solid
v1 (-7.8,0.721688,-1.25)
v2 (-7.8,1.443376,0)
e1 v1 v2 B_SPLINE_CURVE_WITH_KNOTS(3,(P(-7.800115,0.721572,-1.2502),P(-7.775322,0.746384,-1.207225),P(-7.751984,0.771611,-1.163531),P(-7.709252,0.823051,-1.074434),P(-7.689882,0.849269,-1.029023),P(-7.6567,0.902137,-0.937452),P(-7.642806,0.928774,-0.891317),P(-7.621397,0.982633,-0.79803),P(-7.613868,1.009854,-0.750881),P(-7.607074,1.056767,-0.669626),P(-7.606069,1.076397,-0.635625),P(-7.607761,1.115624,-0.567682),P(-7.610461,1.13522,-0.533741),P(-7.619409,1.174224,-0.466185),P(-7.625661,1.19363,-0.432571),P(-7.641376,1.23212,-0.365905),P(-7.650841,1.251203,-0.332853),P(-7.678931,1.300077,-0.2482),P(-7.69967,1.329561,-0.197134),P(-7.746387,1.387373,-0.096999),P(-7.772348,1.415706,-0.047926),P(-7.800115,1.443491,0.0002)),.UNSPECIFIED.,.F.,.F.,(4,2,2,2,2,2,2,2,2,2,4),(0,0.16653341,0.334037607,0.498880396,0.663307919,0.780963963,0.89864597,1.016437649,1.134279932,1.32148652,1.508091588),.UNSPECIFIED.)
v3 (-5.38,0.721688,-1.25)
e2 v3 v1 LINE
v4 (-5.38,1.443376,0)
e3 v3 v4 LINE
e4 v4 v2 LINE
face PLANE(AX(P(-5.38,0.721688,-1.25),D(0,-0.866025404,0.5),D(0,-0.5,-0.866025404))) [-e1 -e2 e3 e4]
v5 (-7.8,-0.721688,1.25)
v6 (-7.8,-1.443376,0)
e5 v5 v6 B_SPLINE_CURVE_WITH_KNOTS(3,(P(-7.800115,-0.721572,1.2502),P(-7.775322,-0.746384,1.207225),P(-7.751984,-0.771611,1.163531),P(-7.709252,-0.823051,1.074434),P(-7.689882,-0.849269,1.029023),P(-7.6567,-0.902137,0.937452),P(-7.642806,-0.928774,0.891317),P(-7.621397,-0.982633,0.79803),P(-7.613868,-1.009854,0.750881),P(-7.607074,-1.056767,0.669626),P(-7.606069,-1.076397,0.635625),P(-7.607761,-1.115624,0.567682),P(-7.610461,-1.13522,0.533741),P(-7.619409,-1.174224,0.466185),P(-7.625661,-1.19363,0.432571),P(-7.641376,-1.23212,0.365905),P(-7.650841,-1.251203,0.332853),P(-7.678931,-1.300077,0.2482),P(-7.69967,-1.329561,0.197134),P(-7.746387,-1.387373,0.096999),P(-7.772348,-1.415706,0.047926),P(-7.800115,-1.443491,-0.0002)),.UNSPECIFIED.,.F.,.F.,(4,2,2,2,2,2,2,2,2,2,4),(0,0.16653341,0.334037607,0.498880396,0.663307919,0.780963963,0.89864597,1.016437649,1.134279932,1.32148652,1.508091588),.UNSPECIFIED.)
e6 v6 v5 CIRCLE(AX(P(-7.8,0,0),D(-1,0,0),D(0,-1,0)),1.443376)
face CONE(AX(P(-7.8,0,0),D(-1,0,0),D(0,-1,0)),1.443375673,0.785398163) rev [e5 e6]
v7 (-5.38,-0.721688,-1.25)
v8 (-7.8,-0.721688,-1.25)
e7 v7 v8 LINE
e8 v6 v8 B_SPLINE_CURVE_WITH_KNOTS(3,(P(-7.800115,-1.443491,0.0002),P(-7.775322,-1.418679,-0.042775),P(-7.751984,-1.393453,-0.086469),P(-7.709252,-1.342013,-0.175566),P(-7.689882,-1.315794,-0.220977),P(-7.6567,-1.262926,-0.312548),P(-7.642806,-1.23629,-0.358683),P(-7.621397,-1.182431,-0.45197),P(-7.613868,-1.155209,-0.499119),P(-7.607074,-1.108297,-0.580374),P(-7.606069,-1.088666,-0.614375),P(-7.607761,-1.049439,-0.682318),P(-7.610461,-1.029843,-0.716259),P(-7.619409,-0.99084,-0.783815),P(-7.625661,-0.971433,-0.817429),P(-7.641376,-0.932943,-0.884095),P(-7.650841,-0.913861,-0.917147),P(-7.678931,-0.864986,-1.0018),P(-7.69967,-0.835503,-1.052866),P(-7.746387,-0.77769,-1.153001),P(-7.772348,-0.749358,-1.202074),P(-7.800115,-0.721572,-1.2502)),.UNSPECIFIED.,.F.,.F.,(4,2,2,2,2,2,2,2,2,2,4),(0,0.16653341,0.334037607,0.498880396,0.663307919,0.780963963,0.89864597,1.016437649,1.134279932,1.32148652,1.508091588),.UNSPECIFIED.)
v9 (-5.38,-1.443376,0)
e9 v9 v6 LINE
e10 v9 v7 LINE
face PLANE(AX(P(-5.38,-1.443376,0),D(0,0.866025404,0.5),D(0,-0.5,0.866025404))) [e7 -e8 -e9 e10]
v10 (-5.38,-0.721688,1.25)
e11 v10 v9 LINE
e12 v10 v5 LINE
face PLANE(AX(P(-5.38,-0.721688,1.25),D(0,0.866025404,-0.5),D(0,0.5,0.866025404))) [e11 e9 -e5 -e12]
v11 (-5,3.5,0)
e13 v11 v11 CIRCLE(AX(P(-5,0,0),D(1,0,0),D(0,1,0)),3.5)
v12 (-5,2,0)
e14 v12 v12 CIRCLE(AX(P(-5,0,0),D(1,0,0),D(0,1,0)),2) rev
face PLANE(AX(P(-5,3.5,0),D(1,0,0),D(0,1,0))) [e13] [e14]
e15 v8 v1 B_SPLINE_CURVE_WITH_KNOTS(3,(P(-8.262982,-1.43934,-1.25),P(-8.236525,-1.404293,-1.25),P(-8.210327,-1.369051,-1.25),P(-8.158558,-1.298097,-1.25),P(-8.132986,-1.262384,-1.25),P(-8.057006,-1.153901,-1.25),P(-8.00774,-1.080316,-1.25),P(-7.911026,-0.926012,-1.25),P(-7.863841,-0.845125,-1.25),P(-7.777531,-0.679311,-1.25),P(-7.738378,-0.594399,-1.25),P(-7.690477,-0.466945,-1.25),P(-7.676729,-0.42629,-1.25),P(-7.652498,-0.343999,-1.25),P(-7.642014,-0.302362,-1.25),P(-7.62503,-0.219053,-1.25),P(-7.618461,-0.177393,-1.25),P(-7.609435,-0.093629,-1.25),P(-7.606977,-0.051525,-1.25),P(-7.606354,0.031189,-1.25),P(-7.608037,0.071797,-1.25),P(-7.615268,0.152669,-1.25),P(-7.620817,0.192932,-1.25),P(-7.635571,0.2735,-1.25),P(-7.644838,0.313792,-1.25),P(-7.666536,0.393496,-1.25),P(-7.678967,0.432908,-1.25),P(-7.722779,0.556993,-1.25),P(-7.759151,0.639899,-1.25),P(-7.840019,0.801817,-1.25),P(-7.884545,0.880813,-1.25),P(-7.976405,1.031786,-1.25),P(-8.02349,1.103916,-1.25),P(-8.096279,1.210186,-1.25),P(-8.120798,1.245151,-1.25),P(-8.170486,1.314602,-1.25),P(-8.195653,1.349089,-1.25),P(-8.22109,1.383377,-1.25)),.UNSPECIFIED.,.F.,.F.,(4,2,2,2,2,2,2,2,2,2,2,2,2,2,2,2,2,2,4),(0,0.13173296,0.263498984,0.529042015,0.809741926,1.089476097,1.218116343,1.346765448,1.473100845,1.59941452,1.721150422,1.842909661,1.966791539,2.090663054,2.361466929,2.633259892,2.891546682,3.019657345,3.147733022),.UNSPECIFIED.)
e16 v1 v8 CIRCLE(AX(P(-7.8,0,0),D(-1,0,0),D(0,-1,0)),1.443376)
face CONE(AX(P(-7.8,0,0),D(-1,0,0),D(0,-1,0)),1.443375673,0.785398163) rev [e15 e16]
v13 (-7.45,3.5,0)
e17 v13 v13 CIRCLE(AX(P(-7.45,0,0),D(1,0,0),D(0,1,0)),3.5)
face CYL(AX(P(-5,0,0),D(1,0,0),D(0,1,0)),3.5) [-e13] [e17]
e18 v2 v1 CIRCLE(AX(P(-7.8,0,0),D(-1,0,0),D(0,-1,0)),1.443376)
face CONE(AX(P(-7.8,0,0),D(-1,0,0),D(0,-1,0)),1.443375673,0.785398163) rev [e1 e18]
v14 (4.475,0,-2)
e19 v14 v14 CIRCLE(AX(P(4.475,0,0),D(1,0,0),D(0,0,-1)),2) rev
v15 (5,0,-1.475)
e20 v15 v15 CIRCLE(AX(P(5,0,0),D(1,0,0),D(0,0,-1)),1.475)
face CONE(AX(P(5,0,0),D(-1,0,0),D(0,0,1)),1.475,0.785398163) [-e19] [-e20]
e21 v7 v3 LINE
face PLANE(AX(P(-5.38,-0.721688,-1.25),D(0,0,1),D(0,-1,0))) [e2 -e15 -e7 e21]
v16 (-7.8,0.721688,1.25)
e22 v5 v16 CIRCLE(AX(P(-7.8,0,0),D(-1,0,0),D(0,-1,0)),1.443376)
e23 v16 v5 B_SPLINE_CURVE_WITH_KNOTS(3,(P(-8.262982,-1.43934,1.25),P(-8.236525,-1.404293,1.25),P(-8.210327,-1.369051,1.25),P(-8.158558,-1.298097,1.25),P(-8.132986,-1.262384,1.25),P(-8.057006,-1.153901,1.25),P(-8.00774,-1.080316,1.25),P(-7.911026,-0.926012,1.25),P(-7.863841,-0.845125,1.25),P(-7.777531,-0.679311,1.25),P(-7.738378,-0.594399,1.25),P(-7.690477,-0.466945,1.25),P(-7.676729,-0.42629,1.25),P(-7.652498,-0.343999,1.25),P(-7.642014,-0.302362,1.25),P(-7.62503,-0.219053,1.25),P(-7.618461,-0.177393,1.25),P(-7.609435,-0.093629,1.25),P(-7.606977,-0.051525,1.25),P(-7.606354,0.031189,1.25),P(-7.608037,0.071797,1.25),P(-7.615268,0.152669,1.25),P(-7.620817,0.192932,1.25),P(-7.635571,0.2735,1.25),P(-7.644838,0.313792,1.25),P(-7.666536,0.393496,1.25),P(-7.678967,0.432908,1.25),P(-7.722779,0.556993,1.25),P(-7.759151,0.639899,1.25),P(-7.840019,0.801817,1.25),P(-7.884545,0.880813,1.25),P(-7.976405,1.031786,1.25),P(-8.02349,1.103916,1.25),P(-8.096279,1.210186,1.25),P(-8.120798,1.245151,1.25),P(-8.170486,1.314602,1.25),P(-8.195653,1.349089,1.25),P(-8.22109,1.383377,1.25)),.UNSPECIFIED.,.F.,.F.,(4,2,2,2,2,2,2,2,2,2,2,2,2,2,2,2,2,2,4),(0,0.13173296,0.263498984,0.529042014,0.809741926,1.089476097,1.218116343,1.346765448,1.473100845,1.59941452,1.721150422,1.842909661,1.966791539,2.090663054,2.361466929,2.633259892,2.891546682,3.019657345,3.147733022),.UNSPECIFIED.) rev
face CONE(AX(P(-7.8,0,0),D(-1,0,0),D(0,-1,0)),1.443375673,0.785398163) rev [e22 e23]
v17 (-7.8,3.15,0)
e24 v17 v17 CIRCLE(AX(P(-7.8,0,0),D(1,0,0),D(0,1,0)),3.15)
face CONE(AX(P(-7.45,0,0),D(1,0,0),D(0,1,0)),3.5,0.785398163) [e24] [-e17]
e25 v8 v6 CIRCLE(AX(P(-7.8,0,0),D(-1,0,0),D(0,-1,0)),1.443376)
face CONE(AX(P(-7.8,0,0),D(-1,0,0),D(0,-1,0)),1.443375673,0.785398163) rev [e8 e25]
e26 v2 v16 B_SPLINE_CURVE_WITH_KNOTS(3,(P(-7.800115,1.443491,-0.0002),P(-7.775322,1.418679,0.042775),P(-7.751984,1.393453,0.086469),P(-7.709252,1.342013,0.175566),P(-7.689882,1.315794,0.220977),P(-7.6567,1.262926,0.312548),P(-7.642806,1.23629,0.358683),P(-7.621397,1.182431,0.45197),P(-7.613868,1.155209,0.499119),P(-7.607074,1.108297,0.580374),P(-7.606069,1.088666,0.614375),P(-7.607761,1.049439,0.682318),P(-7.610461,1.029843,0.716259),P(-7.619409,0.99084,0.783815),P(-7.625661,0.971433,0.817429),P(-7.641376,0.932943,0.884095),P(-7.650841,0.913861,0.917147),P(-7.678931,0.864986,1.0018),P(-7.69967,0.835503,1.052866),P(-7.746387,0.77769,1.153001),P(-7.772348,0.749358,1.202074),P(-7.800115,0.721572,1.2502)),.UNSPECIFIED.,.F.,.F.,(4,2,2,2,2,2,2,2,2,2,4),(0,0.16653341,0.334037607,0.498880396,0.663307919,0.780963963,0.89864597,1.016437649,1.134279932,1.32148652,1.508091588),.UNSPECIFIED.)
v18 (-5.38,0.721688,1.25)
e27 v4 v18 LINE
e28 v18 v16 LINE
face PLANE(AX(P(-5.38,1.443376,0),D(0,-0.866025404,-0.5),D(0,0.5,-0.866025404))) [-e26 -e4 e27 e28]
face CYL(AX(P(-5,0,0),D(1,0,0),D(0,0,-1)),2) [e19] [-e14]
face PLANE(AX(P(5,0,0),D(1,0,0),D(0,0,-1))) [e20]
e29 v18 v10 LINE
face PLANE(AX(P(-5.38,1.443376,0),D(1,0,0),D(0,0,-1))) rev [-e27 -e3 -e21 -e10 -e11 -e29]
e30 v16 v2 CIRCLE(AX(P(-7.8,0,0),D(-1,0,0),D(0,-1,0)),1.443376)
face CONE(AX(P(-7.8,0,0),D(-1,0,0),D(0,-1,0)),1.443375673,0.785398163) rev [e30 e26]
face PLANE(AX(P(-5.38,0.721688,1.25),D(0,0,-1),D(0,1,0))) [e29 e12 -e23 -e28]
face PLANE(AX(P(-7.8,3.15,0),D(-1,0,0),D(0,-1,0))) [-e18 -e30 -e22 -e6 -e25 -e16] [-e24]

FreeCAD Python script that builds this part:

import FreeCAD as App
import Part
import Sketcher

V = App.Vector
Q = App.Units.Quantity


def edges_at(feature, points):
    """Names of the edges that pass closest to the given points."""
    edges = feature.Shape.Edges
    near = lambda p: min(range(len(edges)), key=lambda i: edges[i].distToShape(Part.Vertex(*p))[0])
    return sorted({f"Edge{near(p) + 1}" for p in points})

doc = App.newDocument("Part")
body = doc.addObject("PartDesign::Body", "Body")

# Sketch on YZ plane
sketch1 = doc.addObject("Sketcher::SketchObject", "Sketch")
body.addObject(sketch1)
sketch1.AttachmentSupport = (doc.YZ_Plane, [""])
sketch1.MapMode = "FlatFace"
sketch1.AttachmentOffset = App.Placement(V(0, 0, 5), App.Rotation())
sketch1.addGeometry(Part.Circle(V(0, 0, 0), V(0, 0, 1), 2), False)
sketch1.addConstraint(Sketcher.Constraint("Coincident", 0, 3, -1, 1))
sketch1.addConstraint(Sketcher.Constraint("Diameter", 0, 4.0))
pad1 = doc.addObject("PartDesign::Pad", "Pad")
body.addObject(pad1)
pad1.Profile = sketch1
pad1.Length = 10
pad1.Reversed = True
doc.recompute()

chamfer = doc.addObject("PartDesign::Chamfer", "Chamfer")
body.addObject(chamfer)
chamfer.Base = (pad1, edges_at(pad1, [(5, 0, 2)]))
chamfer.Size = 0.525

# Sketch on XY plane
sketch2 = doc.addObject("Sketcher::SketchObject", "Sketch001")
body.addObject(sketch2)
sketch2.AttachmentSupport = (doc.XY_Plane, [""])
sketch2.MapMode = "FlatFace"
sketch2.addGeometry(Part.LineSegment(V(-7.45, 3.5, 0), V(-7.8, 3.15, 0)), False)
sketch2.addGeometry(Part.LineSegment(V(-7.8, 3.15, 0), V(-7.8, 0, 0)), False)
sketch2.addGeometry(Part.LineSegment(V(-7.8, 0, 0), V(-5, 0, 0)), False)
sketch2.addGeometry(Part.LineSegment(V(-5, 0, 0), V(-5, 3.5, 0)), False)
sketch2.addGeometry(Part.LineSegment(V(-5, 3.5, 0), V(-7.45, 3.5, 0)), False)
sketch2.addConstraint(Sketcher.Constraint("Coincident", 0, 2, 1, 1))
sketch2.addConstraint(Sketcher.Constraint("Coincident", 1, 2, 2, 1))
sketch2.addConstraint(Sketcher.Constraint("Coincident", 2, 2, 3, 1))
sketch2.addConstraint(Sketcher.Constraint("Coincident", 3, 2, 4, 1))
sketch2.addConstraint(Sketcher.Constraint("Coincident", 4, 2, 0, 1))
sketch2.addConstraint(Sketcher.Constraint("Vertical", 1))
sketch2.addConstraint(Sketcher.Constraint("Horizontal", 2))
sketch2.addConstraint(Sketcher.Constraint("Vertical", 3))
sketch2.addConstraint(Sketcher.Constraint("Horizontal", 4))
sketch2.addConstraint(Sketcher.Constraint("PointOnObject", 1, 2, -1))
sketch2.addConstraint(Sketcher.Constraint("Angle", 0, Q("-135 deg")))
sketch2.addConstraint(Sketcher.Constraint("DistanceX", 2, 1, 2, 2, 2.8))
sketch2.addConstraint(Sketcher.Constraint("DistanceY", 3, 1, 3, 2, 3.5))
sketch2.addConstraint(Sketcher.Constraint("DistanceX", 2, 2, -1, 1, 5.0))
sketch2.addConstraint(Sketcher.Constraint("DistanceX", 4, 2, 4, 1, 2.45))
revolution = doc.addObject("PartDesign::Revolution", "Revolution")
body.addObject(revolution)
revolution.Profile = sketch2
revolution.ReferenceAxis = (sketch2, ["H_Axis"])
revolution.Angle = 360

# Sketch on YZ plane
sketch3 = doc.addObject("Sketcher::SketchObject", "Sketch002")
body.addObject(sketch3)
sketch3.AttachmentSupport = (doc.YZ_Plane, [""])
sketch3.MapMode = "FlatFace"
sketch3.AttachmentOffset = App.Placement(V(0, 0, -7.8), App.Rotation())
sketch3.addGeometry(Part.LineSegment(V(1.4, 0, 0), V(0.7, 1.2, 0)), False)
sketch3.addGeometry(Part.LineSegment(V(0.7, 1.2, 0), V(-0.7, 1.2, 0)), False)
sketch3.addGeometry(Part.LineSegment(V(-0.7, 1.2, 0), V(-1.4, 0, 0)), False)
sketch3.addGeometry(Part.LineSegment(V(-1.4, 0, 0), V(-0.7, -1.2, 0)), False)
sketch3.addGeometry(Part.LineSegment(V(-0.7, -1.2, 0), V(0.7, -1.2, 0)), False)
sketch3.addGeometry(Part.LineSegment(V(0.7, -1.2, 0), V(1.4, 0, 0)), False)
sketch3.addConstraint(Sketcher.Constraint("Coincident", 0, 2, 1, 1))
sketch3.addConstraint(Sketcher.Constraint("Coincident", 1, 2, 2, 1))
sketch3.addConstraint(Sketcher.Constraint("Coincident", 2, 2, 3, 1))
sketch3.addConstraint(Sketcher.Constraint("Coincident", 3, 2, 4, 1))
sketch3.addConstraint(Sketcher.Constraint("Coincident", 4, 2, 5, 1))
sketch3.addConstraint(Sketcher.Constraint("Coincident", 5, 2, 0, 1))
sketch3.addConstraint(Sketcher.Constraint("Horizontal", 1))
sketch3.addConstraint(Sketcher.Constraint("Horizontal", 4))
sketch3.addConstraint(Sketcher.Constraint("Symmetric", 0, 2, 3, 2, -1, 1))
sketch3.addConstraint(Sketcher.Constraint("Symmetric", 2, 2, 5, 2, -1, 1))
sketch3.addConstraint(Sketcher.Constraint("PointOnObject", 2, 2, -1))
sketch3.addConstraint(Sketcher.Constraint("Parallel", 2, 5))
sketch3.addConstraint(Sketcher.Constraint("Vertical", 1, 2, 3, 2))
sketch3.addConstraint(Sketcher.Constraint("Angle", 0, Q("120 deg")))
sketch3.addConstraint(Sketcher.Constraint("DistanceY", 3, 2, 1, 2, 2.5))
sketch3.addConstraint(Sketcher.Constraint("DistanceX", 1, 2, 1, 1, 1.443376))
pocket1 = doc.addObject("PartDesign::Pocket", "Pocket")
body.addObject(pocket1)
pocket1.Profile = sketch3
pocket1.Length = 2.42
pocket1.Reversed = True

# Sketch on XZ plane
sketch4 = doc.addObject("Sketcher::SketchObject", "Sketch003")
body.addObject(sketch4)
sketch4.AttachmentSupport = (doc.XZ_Plane, [""])
sketch4.MapMode = "FlatFace"
sketch4.addGeometry(Part.LineSegment(V(-7.8, 0, 0), V(-7.8, 1.4, 0)), False)
sketch4.addGeometry(Part.LineSegment(V(-7.8, 1.4, 0), V(-6.4, 0, 0)), False)
sketch4.addGeometry(Part.LineSegment(V(-6.4, 0, 0), V(-7.8, 0, 0)), False)
sketch4.addConstraint(Sketcher.Constraint("Coincident", 0, 2, 1, 1))
sketch4.addConstraint(Sketcher.Constraint("Coincident", 1, 2, 2, 1))
sketch4.addConstraint(Sketcher.Constraint("Coincident", 2, 2, 0, 1))
sketch4.addConstraint(Sketcher.Constraint("Vertical", 0))
sketch4.addConstraint(Sketcher.Constraint("Horizontal", 2))
sketch4.addConstraint(Sketcher.Constraint("PointOnObject", 1, 2, -1))
sketch4.addConstraint(Sketcher.Constraint("Equal", 2, 0))
sketch4.addConstraint(Sketcher.Constraint("DistanceX", 0, 2, -1, 1, 7.8))
sketch4.addConstraint(Sketcher.Constraint("Distance", 1, 2.041241))
groove = doc.addObject("PartDesign::Groove", "Groove")
body.addObject(groove)
groove.Profile = sketch4
groove.ReferenceAxis = (sketch4, ["H_Axis"])
groove.Angle = 360

doc.recompute()
